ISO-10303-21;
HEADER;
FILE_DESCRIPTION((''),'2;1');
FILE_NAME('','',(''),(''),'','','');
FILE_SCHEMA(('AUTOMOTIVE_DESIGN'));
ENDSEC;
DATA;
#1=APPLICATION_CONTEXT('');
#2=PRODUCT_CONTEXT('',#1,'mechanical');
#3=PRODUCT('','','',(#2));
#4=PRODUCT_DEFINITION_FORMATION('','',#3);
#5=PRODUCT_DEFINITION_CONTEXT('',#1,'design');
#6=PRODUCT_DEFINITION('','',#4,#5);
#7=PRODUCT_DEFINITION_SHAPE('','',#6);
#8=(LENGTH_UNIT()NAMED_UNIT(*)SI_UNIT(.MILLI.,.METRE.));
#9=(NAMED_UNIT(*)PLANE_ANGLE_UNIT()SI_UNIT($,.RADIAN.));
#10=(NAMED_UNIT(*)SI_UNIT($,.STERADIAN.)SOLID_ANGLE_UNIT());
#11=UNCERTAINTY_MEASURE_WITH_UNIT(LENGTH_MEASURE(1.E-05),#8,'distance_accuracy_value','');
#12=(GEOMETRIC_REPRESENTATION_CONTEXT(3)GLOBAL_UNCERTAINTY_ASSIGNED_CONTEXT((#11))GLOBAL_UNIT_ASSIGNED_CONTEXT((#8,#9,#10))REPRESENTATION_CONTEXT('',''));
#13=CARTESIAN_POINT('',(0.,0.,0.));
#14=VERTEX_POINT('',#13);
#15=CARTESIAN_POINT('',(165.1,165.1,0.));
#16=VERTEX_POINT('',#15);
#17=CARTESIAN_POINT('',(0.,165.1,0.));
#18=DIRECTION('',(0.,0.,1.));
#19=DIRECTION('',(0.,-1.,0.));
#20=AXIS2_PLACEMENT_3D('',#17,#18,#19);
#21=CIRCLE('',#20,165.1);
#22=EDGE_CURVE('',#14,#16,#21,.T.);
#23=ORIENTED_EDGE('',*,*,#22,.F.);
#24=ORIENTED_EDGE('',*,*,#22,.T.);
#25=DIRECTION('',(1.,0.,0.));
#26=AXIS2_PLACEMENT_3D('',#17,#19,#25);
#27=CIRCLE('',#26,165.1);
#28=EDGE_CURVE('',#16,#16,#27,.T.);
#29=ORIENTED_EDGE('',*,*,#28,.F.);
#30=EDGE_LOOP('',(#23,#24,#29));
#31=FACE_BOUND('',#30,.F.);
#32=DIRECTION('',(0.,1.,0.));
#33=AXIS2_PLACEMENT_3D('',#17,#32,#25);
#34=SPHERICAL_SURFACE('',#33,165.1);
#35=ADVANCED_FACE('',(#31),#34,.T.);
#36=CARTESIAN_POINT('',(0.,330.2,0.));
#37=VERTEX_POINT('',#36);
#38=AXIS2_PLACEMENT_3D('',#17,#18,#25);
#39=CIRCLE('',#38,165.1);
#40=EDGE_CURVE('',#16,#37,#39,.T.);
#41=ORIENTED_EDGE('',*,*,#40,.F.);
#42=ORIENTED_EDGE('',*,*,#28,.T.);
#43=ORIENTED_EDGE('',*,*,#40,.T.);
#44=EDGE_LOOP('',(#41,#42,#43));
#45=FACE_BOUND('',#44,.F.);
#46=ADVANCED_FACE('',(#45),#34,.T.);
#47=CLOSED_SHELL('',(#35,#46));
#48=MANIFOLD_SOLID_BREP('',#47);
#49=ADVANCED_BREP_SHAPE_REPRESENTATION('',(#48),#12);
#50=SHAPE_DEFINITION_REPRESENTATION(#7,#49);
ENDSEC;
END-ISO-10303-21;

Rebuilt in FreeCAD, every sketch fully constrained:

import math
import FreeCAD as App
import Part
import Sketcher
from FreeCAD import Vector
Q = App.Units.Quantity

doc = App.newDocument("Part")
params = doc.addObject("Spreadsheet::Sheet", "Params")
for row, (alias, value) in enumerate([
    ("sketch1_radius", "6.5 in"),
    ("revolution_angle", "360 deg"),
], start=1):
    params.set(f"A{row}", alias)
    params.set(f"B{row}", "=" + value)
    params.setAlias(f"B{row}", alias)

body = doc.addObject("PartDesign::Body", "Body")

sketch1 = body.newObject("Sketcher::SketchObject", "Sketch")
sketch1.AttachmentSupport = (doc.getObject("XY_Plane"), [""])
sketch1.MapMode = "FlatFace"
sketch1.addGeometry([
    Part.ArcOfCircle(Part.Circle(Vector(0, 165, 0), Vector(0, 0, 1), 165), math.radians(-90), math.radians(0)),
    Part.ArcOfCircle(Part.Circle(Vector(0, 165, 0), Vector(0, 0, 1), 165), math.radians(0), math.radians(90)),
    Part.LineSegment(Vector(0, 330, 0), Vector(0, 0, 0)),
], False)
sketch1.addConstraint([
    Sketcher.Constraint("Tangent", 0, 2, 1, 1),
    Sketcher.Constraint("Coincident", 1, 2, 2, 1),
    Sketcher.Constraint("Coincident", 2, 2, 0, 1),
    Sketcher.Constraint("Vertical", 2),
    Sketcher.Constraint("Coincident", 2, 2, -1, 1),
    Sketcher.Constraint("Equal", 0, 1),
    Sketcher.Constraint("PointOnObject", 0, 3, -2),
    Sketcher.Constraint("Horizontal", 1, 3, 0, 2),
    Sketcher.Constraint("Radius", 0, Q("6.5 in")),
])
sketch1.setExpression("Constraints[8]", "Params.sketch1_radius")
revolution = body.newObject("PartDesign::Revolution", "Revolution")
revolution.Profile = sketch1
revolution.ReferenceAxis = (sketch1, ["V_Axis"])
revolution.setExpression("Angle", "Params.revolution_angle")

doc.recompute()
